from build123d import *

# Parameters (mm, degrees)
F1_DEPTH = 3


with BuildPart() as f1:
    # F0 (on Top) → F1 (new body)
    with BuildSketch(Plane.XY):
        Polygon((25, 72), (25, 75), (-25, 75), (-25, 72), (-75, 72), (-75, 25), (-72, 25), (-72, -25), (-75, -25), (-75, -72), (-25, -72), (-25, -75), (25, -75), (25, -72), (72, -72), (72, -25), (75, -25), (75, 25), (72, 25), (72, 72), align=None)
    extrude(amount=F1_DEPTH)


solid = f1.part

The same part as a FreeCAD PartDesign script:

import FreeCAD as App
import Part
import Sketcher
Q = App.Units.Quantity


def add_polygon(sketch, points):
    """Adds a closed chain of lines whose ends are joined by coincident constraints."""
    first, n = sketch.GeometryCount, len(points)
    for a, b in zip(points, points[1:] + points[:1]):
        sketch.addGeometry(Part.LineSegment(App.Vector(*a, 0), App.Vector(*b, 0)), False)
    for i in range(n):
        sketch.addConstraint(Sketcher.Constraint("Coincident", first + i, 2, first + (i + 1) % n, 1))

doc = App.newDocument("Part")
body = doc.addObject("PartDesign::Body", "Body")

# Sketch on XY plane
sketch1 = body.newObject("Sketcher::SketchObject", "Sketch")
sketch1.AttachmentSupport = (doc.getObject("XY_Plane"), [""])
sketch1.MapMode = "FlatFace"
add_polygon(sketch1, [(25, 72), (25, 75), (-25, 75), (-25, 72), (-75, 72), (-75, 25), (-72, 25), (-72, -25), (-75, -25), (-75, -72), (-25, -72), (-25, -75), (25, -75), (25, -72), (72, -72), (72, -25), (75, -25), (75, 25), (72, 25), (72, 72)])  # lines 0-19
sketch1.addConstraint(Sketcher.Constraint("Vertical", 0))
sketch1.addConstraint(Sketcher.Constraint("Horizontal", 1))
sketch1.addConstraint(Sketcher.Constraint("Vertical", 2))
sketch1.addConstraint(Sketcher.Constraint("Horizontal", 3))
sketch1.addConstraint(Sketcher.Constraint("Vertical", 4))
sketch1.addConstraint(Sketcher.Constraint("Horizontal", 5))
sketch1.addConstraint(Sketcher.Constraint("Vertical", 6))
sketch1.addConstraint(Sketcher.Constraint("Horizontal", 7))
sketch1.addConstraint(Sketcher.Constraint("Vertical", 8))
sketch1.addConstraint(Sketcher.Constraint("Horizontal", 9))
sketch1.addConstraint(Sketcher.Constraint("Vertical", 10))
sketch1.addConstraint(Sketcher.Constraint("Horizontal", 11))
sketch1.addConstraint(Sketcher.Constraint("Vertical", 12))
sketch1.addConstraint(Sketcher.Constraint("Horizontal", 13))
sketch1.addConstraint(Sketcher.Constraint("Vertical", 14))
sketch1.addConstraint(Sketcher.Constraint("Horizontal", 15))
sketch1.addConstraint(Sketcher.Constraint("Vertical", 16))
sketch1.addConstraint(Sketcher.Constraint("Horizontal", 17))
sketch1.addConstraint(Sketcher.Constraint("Vertical", 18))
sketch1.addConstraint(Sketcher.Constraint("Horizontal", 19))
sketch1.addConstraint(Sketcher.Constraint("Symmetric", 0, 2, 10, 2, -1, 1))
sketch1.addConstraint(Sketcher.Constraint("Symmetric", 2, 2, 12, 2, -1, 1))
sketch1.addConstraint(Sketcher.Constraint("Symmetric", 5, 2, 14, 2, -1, 1))
sketch1.addConstraint(Sketcher.Constraint("Symmetric", 7, 2, 16, 2, -1, 1))
sketch1.addConstraint(Sketcher.Constraint("Symmetric", 9, 2, 12, 2, -2))
sketch1.addConstraint(Sketcher.Constraint("Symmetric", 4, 2, 16, 2, -2))
sketch1.addConstraint(Sketcher.Constraint("Symmetric", 13, 2, 18, 2, -1))
sketch1.addConstraint(Sketcher.Constraint("Equal", 1, 3))
sketch1.addConstraint(Sketcher.Constraint("Equal", 17, 0))
sketch1.addConstraint(Sketcher.Constraint("Equal", 19, 4))
sketch1.addConstraint(Sketcher.Constraint("Equal", 11, 6))
sketch1.addConstraint(Sketcher.Constraint("DistanceX", 1, 2, 1, 1, Q("50 mm")))
sketch1.addConstraint(Sketcher.Constraint("DistanceX", 5, 1, 5, 2, Q("3 mm")))
pad1 = body.newObject("PartDesign::Pad", "Pad")
pad1.Profile = sketch1
pad1.Length = 3

doc.recompute()
